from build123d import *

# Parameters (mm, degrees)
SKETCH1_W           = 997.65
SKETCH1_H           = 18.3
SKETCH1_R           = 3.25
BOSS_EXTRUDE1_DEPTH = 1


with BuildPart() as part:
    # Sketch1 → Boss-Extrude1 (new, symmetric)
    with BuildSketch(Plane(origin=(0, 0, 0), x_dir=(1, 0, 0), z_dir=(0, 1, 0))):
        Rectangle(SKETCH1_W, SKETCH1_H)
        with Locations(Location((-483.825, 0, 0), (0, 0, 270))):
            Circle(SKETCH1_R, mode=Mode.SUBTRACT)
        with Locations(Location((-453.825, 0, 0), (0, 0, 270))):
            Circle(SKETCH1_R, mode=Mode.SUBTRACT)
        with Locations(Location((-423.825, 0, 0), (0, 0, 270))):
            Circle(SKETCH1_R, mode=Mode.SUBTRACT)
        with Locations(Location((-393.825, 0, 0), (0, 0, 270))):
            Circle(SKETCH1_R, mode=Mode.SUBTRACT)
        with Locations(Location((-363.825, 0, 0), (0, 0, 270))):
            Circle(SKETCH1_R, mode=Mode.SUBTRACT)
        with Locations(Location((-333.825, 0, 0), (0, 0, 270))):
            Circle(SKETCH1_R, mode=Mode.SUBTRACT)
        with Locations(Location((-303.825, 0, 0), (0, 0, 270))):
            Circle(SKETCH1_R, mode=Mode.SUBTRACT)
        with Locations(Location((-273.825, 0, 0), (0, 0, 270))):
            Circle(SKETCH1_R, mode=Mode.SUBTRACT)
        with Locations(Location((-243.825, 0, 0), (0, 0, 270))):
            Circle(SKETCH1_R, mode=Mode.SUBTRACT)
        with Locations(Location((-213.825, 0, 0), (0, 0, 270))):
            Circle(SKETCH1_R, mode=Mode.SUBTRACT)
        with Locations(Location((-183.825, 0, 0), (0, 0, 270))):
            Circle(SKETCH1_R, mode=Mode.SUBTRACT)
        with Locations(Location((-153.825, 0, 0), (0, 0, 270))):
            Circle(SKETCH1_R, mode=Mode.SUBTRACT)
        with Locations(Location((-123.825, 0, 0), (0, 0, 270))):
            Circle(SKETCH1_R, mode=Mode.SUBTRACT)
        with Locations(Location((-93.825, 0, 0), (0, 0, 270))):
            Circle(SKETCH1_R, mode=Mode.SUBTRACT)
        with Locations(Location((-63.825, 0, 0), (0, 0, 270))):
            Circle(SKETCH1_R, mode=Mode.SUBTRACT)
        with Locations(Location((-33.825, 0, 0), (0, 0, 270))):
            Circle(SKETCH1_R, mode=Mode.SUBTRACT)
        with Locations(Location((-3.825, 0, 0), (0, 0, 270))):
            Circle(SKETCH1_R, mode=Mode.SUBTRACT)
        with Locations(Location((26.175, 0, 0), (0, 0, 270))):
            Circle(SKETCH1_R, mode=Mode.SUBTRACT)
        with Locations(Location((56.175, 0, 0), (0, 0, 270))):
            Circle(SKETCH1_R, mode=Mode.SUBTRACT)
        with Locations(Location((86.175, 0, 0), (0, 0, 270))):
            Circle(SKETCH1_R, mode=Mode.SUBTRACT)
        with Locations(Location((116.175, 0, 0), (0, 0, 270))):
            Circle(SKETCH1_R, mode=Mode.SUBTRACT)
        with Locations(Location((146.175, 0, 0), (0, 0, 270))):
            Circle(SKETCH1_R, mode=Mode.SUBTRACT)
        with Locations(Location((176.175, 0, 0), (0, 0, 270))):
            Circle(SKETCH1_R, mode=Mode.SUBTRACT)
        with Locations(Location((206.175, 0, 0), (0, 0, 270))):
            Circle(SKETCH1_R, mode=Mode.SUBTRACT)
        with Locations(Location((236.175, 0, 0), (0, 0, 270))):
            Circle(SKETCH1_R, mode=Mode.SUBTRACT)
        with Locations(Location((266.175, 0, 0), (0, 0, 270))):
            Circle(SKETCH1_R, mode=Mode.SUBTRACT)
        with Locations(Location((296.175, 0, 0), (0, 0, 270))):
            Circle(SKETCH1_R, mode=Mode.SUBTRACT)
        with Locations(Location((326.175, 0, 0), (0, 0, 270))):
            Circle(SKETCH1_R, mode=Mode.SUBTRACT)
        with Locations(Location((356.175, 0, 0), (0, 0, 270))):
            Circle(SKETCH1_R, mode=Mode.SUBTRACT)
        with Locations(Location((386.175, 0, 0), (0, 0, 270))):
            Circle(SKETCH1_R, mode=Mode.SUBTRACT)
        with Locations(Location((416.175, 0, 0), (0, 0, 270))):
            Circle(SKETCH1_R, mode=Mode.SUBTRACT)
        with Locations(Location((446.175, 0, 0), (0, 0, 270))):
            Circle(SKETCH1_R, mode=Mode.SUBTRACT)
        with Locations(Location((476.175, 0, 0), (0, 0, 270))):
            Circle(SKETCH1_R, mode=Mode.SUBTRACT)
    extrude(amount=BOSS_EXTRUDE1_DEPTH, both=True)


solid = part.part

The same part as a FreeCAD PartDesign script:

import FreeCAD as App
import Part
import Sketcher

V = App.Vector


def add_polygon(sketch, points):
    """Adds a closed chain of lines whose ends are joined by coincident constraints."""
    first, n = sketch.GeometryCount, len(points)
    for a, b in zip(points, points[1:] + points[:1]):
        sketch.addGeometry(Part.LineSegment(App.Vector(*a, 0), App.Vector(*b, 0)), False)
    for i in range(n):
        sketch.addConstraint(Sketcher.Constraint("Coincident", first + i, 2, first + (i + 1) % n, 1))

doc = App.newDocument("Part")
body = doc.addObject("PartDesign::Body", "Body")

# Sketch on XZ plane
sketch1 = body.newObject("Sketcher::SketchObject", "Sketch")
sketch1.AttachmentSupport = (doc.getObject("XZ_Plane"), [""])
sketch1.MapMode = "FlatFace"
add_polygon(sketch1, [(-498.825, -9.15), (-498.825, 9.15), (498.825, 9.15), (498.825, -9.15)])  # lines 0-3
sketch1.addGeometry(Part.Circle(V(-483.825, 0, 0), V(0, 0, 1), 3.25), False)  # 4
sketch1.addGeometry(Part.Circle(V(-453.825, 0, 0), V(0, 0, 1), 3.25), False)  # 5
sketch1.addGeometry(Part.Circle(V(-423.825, 0, 0), V(0, 0, 1), 3.25), False)  # 6
sketch1.addGeometry(Part.Circle(V(-393.825, 0, 0), V(0, 0, 1), 3.25), False)  # 7
sketch1.addGeometry(Part.Circle(V(-363.825, 0, 0), V(0, 0, 1), 3.25), False)  # 8
sketch1.addGeometry(Part.Circle(V(-333.825, 0, 0), V(0, 0, 1), 3.25), False)  # 9
sketch1.addGeometry(Part.Circle(V(-303.825, 0, 0), V(0, 0, 1), 3.25), False)  # 10
sketch1.addGeometry(Part.Circle(V(-273.825, 0, 0), V(0, 0, 1), 3.25), False)  # 11
sketch1.addGeometry(Part.Circle(V(-243.825, 0, 0), V(0, 0, 1), 3.25), False)  # 12
sketch1.addGeometry(Part.Circle(V(-213.825, 0, 0), V(0, 0, 1), 3.25), False)  # 13
sketch1.addGeometry(Part.Circle(V(-183.825, 0, 0), V(0, 0, 1), 3.25), False)  # 14
sketch1.addGeometry(Part.Circle(V(-153.825, 0, 0), V(0, 0, 1), 3.25), False)  # 15
sketch1.addGeometry(Part.Circle(V(-123.825, 0, 0), V(0, 0, 1), 3.25), False)  # 16
sketch1.addGeometry(Part.Circle(V(-93.825, 0, 0), V(0, 0, 1), 3.25), False)  # 17
sketch1.addGeometry(Part.Circle(V(-63.825, 0, 0), V(0, 0, 1), 3.25), False)  # 18
sketch1.addGeometry(Part.Circle(V(-33.825, 0, 0), V(0, 0, 1), 3.25), False)  # 19
sketch1.addGeometry(Part.Circle(V(-3.825, 0, 0), V(0, 0, 1), 3.25), False)  # 20
sketch1.addGeometry(Part.Circle(V(26.175, 0, 0), V(0, 0, 1), 3.25), False)  # 21
sketch1.addGeometry(Part.Circle(V(56.175, 0, 0), V(0, 0, 1), 3.25), False)  # 22
sketch1.addGeometry(Part.Circle(V(86.175, 0, 0), V(0, 0, 1), 3.25), False)  # 23
sketch1.addGeometry(Part.Circle(V(116.175, 0, 0), V(0, 0, 1), 3.25), False)  # 24
sketch1.addGeometry(Part.Circle(V(146.175, 0, 0), V(0, 0, 1), 3.25), False)  # 25
sketch1.addGeometry(Part.Circle(V(176.175, 0, 0), V(0, 0, 1), 3.25), False)  # 26
sketch1.addGeometry(Part.Circle(V(206.175, 0, 0), V(0, 0, 1), 3.25), False)  # 27
sketch1.addGeometry(Part.Circle(V(236.175, 0, 0), V(0, 0, 1), 3.25), False)  # 28
sketch1.addGeometry(Part.Circle(V(266.175, 0, 0), V(0, 0, 1), 3.25), False)  # 29
sketch1.addGeometry(Part.Circle(V(296.175, 0, 0), V(0, 0, 1), 3.25), False)  # 30
sketch1.addGeometry(Part.Circle(V(326.175, 0, 0), V(0, 0, 1), 3.25), False)  # 31
sketch1.addGeometry(Part.Circle(V(356.175, 0, 0), V(0, 0, 1), 3.25), False)  # 32
sketch1.addGeometry(Part.Circle(V(386.175, 0, 0), V(0, 0, 1), 3.25), False)  # 33
sketch1.addGeometry(Part.Circle(V(416.175, 0, 0), V(0, 0, 1), 3.25), False)  # 34
sketch1.addGeometry(Part.Circle(V(446.175, 0, 0), V(0, 0, 1), 3.25), False)  # 35
sketch1.addGeometry(Part.Circle(V(476.175, 0, 0), V(0, 0, 1), 3.25), False)  # 36
sketch1.addConstraint([
    Sketcher.Constraint("Vertical", 0),
    Sketcher.Constraint("Horizontal", 1),
    Sketcher.Constraint("Vertical", 2),
    Sketcher.Constraint("Horizontal", 3),
    Sketcher.Constraint("Equal", 4, 5),
    Sketcher.Constraint("Equal", 5, 6),
    Sketcher.Constraint("Equal", 6, 7),
    Sketcher.Constraint("Equal", 7, 8),
    Sketcher.Constraint("Equal", 8, 9),
    Sketcher.Constraint("Equal", 9, 10),
    Sketcher.Constraint("Equal", 10, 11),
    Sketcher.Constraint("Equal", 11, 12),
    Sketcher.Constraint("Equal", 12, 13),
    Sketcher.Constraint("Equal", 13, 14),
    Sketcher.Constraint("Equal", 14, 15),
    Sketcher.Constraint("Equal", 15, 16),
    Sketcher.Constraint("Equal", 16, 17),
    Sketcher.Constraint("Equal", 17, 18),
    Sketcher.Constraint("Equal", 18, 19),
    Sketcher.Constraint("Equal", 19, 20),
    Sketcher.Constraint("Equal", 20, 21),
    Sketcher.Constraint("Equal", 21, 22),
    Sketcher.Constraint("Equal", 22, 23),
    Sketcher.Constraint("Equal", 23, 24),
    Sketcher.Constraint("Equal", 24, 25),
    Sketcher.Constraint("Equal", 25, 26),
    Sketcher.Constraint("Equal", 26, 27),
    Sketcher.Constraint("Equal", 27, 28),
    Sketcher.Constraint("Equal", 28, 29),
    Sketcher.Constraint("Equal", 29, 30),
    Sketcher.Constraint("Equal", 30, 31),
    Sketcher.Constraint("Equal", 31, 32),
    Sketcher.Constraint("Equal", 32, 33),
    Sketcher.Constraint("Equal", 33, 34),
    Sketcher.Constraint("Equal", 34, 35),
    Sketcher.Constraint("Equal", 35, 36),
    Sketcher.Constraint("Symmetric", 0, 2, 2, 2, -1, 1),
    Sketcher.Constraint("PointOnObject", 4, 3, -1),
    Sketcher.Constraint("PointOnObject", 5, 3, -1),
    Sketcher.Constraint("PointOnObject", 6, 3, -1),
    Sketcher.Constraint("PointOnObject", 7, 3, -1),
    Sketcher.Constraint("PointOnObject", 8, 3, -1),
    Sketcher.Constraint("PointOnObject", 9, 3, -1),
    Sketcher.Constraint("PointOnObject", 10, 3, -1),
    Sketcher.Constraint("PointOnObject", 11, 3, -1),
    Sketcher.Constraint("PointOnObject", 12, 3, -1),
    Sketcher.Constraint("PointOnObject", 13, 3, -1),
    Sketcher.Constraint("PointOnObject", 14, 3, -1),
    Sketcher.Constraint("PointOnObject", 15, 3, -1),
    Sketcher.Constraint("PointOnObject", 16, 3, -1),
    Sketcher.Constraint("PointOnObject", 17, 3, -1),
    Sketcher.Constraint("PointOnObject", 18, 3, -1),
    Sketcher.Constraint("PointOnObject", 19, 3, -1),
    Sketcher.Constraint("PointOnObject", 20, 3, -1),
    Sketcher.Constraint("PointOnObject", 21, 3, -1),
    Sketcher.Constraint("PointOnObject", 22, 3, -1),
    Sketcher.Constraint("PointOnObject", 23, 3, -1),
    Sketcher.Constraint("PointOnObject", 24, 3, -1),
    Sketcher.Constraint("PointOnObject", 25, 3, -1),
    Sketcher.Constraint("PointOnObject", 26, 3, -1),
    Sketcher.Constraint("PointOnObject", 27, 3, -1),
    Sketcher.Constraint("PointOnObject", 28, 3, -1),
    Sketcher.Constraint("PointOnObject", 29, 3, -1),
    Sketcher.Constraint("PointOnObject", 30, 3, -1),
    Sketcher.Constraint("PointOnObject", 31, 3, -1),
    Sketcher.Constraint("PointOnObject", 32, 3, -1),
    Sketcher.Constraint("PointOnObject", 33, 3, -1),
    Sketcher.Constraint("PointOnObject", 34, 3, -1),
    Sketcher.Constraint("PointOnObject", 35, 3, -1),
    Sketcher.Constraint("PointOnObject", 36, 3, -1),
    Sketcher.Constraint("Diameter", 4, 6.5),
    Sketcher.Constraint("DistanceY", 0, 1, 0, 2, 18.3),
    Sketcher.Constraint("DistanceX", 4, 3, 5, 3, 30.0),
    Sketcher.Constraint("DistanceX", 5, 3, 6, 3, 30.0),
    Sketcher.Constraint("DistanceX", 6, 3, 7, 3, 30.0),
    Sketcher.Constraint("DistanceX", 7, 3, 8, 3, 30.0),
    Sketcher.Constraint("DistanceX", 8, 3, 9, 3, 30.0),
    Sketcher.Constraint("DistanceX", 9, 3, 10, 3, 30.0),
    Sketcher.Constraint("DistanceX", 10, 3, 11, 3, 30.0),
    Sketcher.Constraint("DistanceX", 11, 3, 12, 3, 30.0),
    Sketcher.Constraint("DistanceX", 12, 3, 13, 3, 30.0),
    Sketcher.Constraint("DistanceX", 13, 3, 14, 3, 30.0),
    Sketcher.Constraint("DistanceX", 14, 3, 15, 3, 30.0),
    Sketcher.Constraint("DistanceX", 15, 3, 16, 3, 30.0),
    Sketcher.Constraint("DistanceX", 16, 3, 17, 3, 30.0),
    Sketcher.Constraint("DistanceX", 17, 3, 18, 3, 30.0),
    Sketcher.Constraint("DistanceX", 18, 3, 19, 3, 30.0),
    Sketcher.Constraint("DistanceX", 19, 3, 20, 3, 30.0),
    Sketcher.Constraint("DistanceX", 20, 3, 21, 3, 30.0),
    Sketcher.Constraint("DistanceX", 21, 3, 22, 3, 30.0),
    Sketcher.Constraint("DistanceX", 22, 3, 23, 3, 30.0),
    Sketcher.Constraint("DistanceX", 23, 3, 24, 3, 30.0),
    Sketcher.Constraint("DistanceX", 24, 3, 25, 3, 30.0),
    Sketcher.Constraint("DistanceX", 25, 3, 26, 3, 30.0),
    Sketcher.Constraint("DistanceX", 26, 3, 27, 3, 30.0),
    Sketcher.Constraint("DistanceX", 27, 3, 28, 3, 30.0),
    Sketcher.Constraint("DistanceX", 28, 3, 29, 3, 30.0),
    Sketcher.Constraint("DistanceX", 29, 3, 30, 3, 30.0),
    Sketcher.Constraint("DistanceX", 30, 3, 31, 3, 30.0),
    Sketcher.Constraint("DistanceX", 31, 3, 32, 3, 30.0),
    Sketcher.Constraint("DistanceX", 32, 3, 33, 3, 30.0),
    Sketcher.Constraint("DistanceX", 33, 3, 34, 3, 30.0),
    Sketcher.Constraint("DistanceX", 34, 3, 35, 3, 30.0),
    Sketcher.Constraint("DistanceX", 35, 3, 36, 3, 30.0),
    Sketcher.Constraint("DistanceX", 0, 2, 4, 3, 15.0),
    Sketcher.Constraint("DistanceX", 1, 1, 1, 2, 997.65),
])
pad1 = body.newObject("PartDesign::Pad", "Pad")
pad1.Profile = sketch1
pad1.Length = 2
pad1.Midplane = True

doc.recompute()
